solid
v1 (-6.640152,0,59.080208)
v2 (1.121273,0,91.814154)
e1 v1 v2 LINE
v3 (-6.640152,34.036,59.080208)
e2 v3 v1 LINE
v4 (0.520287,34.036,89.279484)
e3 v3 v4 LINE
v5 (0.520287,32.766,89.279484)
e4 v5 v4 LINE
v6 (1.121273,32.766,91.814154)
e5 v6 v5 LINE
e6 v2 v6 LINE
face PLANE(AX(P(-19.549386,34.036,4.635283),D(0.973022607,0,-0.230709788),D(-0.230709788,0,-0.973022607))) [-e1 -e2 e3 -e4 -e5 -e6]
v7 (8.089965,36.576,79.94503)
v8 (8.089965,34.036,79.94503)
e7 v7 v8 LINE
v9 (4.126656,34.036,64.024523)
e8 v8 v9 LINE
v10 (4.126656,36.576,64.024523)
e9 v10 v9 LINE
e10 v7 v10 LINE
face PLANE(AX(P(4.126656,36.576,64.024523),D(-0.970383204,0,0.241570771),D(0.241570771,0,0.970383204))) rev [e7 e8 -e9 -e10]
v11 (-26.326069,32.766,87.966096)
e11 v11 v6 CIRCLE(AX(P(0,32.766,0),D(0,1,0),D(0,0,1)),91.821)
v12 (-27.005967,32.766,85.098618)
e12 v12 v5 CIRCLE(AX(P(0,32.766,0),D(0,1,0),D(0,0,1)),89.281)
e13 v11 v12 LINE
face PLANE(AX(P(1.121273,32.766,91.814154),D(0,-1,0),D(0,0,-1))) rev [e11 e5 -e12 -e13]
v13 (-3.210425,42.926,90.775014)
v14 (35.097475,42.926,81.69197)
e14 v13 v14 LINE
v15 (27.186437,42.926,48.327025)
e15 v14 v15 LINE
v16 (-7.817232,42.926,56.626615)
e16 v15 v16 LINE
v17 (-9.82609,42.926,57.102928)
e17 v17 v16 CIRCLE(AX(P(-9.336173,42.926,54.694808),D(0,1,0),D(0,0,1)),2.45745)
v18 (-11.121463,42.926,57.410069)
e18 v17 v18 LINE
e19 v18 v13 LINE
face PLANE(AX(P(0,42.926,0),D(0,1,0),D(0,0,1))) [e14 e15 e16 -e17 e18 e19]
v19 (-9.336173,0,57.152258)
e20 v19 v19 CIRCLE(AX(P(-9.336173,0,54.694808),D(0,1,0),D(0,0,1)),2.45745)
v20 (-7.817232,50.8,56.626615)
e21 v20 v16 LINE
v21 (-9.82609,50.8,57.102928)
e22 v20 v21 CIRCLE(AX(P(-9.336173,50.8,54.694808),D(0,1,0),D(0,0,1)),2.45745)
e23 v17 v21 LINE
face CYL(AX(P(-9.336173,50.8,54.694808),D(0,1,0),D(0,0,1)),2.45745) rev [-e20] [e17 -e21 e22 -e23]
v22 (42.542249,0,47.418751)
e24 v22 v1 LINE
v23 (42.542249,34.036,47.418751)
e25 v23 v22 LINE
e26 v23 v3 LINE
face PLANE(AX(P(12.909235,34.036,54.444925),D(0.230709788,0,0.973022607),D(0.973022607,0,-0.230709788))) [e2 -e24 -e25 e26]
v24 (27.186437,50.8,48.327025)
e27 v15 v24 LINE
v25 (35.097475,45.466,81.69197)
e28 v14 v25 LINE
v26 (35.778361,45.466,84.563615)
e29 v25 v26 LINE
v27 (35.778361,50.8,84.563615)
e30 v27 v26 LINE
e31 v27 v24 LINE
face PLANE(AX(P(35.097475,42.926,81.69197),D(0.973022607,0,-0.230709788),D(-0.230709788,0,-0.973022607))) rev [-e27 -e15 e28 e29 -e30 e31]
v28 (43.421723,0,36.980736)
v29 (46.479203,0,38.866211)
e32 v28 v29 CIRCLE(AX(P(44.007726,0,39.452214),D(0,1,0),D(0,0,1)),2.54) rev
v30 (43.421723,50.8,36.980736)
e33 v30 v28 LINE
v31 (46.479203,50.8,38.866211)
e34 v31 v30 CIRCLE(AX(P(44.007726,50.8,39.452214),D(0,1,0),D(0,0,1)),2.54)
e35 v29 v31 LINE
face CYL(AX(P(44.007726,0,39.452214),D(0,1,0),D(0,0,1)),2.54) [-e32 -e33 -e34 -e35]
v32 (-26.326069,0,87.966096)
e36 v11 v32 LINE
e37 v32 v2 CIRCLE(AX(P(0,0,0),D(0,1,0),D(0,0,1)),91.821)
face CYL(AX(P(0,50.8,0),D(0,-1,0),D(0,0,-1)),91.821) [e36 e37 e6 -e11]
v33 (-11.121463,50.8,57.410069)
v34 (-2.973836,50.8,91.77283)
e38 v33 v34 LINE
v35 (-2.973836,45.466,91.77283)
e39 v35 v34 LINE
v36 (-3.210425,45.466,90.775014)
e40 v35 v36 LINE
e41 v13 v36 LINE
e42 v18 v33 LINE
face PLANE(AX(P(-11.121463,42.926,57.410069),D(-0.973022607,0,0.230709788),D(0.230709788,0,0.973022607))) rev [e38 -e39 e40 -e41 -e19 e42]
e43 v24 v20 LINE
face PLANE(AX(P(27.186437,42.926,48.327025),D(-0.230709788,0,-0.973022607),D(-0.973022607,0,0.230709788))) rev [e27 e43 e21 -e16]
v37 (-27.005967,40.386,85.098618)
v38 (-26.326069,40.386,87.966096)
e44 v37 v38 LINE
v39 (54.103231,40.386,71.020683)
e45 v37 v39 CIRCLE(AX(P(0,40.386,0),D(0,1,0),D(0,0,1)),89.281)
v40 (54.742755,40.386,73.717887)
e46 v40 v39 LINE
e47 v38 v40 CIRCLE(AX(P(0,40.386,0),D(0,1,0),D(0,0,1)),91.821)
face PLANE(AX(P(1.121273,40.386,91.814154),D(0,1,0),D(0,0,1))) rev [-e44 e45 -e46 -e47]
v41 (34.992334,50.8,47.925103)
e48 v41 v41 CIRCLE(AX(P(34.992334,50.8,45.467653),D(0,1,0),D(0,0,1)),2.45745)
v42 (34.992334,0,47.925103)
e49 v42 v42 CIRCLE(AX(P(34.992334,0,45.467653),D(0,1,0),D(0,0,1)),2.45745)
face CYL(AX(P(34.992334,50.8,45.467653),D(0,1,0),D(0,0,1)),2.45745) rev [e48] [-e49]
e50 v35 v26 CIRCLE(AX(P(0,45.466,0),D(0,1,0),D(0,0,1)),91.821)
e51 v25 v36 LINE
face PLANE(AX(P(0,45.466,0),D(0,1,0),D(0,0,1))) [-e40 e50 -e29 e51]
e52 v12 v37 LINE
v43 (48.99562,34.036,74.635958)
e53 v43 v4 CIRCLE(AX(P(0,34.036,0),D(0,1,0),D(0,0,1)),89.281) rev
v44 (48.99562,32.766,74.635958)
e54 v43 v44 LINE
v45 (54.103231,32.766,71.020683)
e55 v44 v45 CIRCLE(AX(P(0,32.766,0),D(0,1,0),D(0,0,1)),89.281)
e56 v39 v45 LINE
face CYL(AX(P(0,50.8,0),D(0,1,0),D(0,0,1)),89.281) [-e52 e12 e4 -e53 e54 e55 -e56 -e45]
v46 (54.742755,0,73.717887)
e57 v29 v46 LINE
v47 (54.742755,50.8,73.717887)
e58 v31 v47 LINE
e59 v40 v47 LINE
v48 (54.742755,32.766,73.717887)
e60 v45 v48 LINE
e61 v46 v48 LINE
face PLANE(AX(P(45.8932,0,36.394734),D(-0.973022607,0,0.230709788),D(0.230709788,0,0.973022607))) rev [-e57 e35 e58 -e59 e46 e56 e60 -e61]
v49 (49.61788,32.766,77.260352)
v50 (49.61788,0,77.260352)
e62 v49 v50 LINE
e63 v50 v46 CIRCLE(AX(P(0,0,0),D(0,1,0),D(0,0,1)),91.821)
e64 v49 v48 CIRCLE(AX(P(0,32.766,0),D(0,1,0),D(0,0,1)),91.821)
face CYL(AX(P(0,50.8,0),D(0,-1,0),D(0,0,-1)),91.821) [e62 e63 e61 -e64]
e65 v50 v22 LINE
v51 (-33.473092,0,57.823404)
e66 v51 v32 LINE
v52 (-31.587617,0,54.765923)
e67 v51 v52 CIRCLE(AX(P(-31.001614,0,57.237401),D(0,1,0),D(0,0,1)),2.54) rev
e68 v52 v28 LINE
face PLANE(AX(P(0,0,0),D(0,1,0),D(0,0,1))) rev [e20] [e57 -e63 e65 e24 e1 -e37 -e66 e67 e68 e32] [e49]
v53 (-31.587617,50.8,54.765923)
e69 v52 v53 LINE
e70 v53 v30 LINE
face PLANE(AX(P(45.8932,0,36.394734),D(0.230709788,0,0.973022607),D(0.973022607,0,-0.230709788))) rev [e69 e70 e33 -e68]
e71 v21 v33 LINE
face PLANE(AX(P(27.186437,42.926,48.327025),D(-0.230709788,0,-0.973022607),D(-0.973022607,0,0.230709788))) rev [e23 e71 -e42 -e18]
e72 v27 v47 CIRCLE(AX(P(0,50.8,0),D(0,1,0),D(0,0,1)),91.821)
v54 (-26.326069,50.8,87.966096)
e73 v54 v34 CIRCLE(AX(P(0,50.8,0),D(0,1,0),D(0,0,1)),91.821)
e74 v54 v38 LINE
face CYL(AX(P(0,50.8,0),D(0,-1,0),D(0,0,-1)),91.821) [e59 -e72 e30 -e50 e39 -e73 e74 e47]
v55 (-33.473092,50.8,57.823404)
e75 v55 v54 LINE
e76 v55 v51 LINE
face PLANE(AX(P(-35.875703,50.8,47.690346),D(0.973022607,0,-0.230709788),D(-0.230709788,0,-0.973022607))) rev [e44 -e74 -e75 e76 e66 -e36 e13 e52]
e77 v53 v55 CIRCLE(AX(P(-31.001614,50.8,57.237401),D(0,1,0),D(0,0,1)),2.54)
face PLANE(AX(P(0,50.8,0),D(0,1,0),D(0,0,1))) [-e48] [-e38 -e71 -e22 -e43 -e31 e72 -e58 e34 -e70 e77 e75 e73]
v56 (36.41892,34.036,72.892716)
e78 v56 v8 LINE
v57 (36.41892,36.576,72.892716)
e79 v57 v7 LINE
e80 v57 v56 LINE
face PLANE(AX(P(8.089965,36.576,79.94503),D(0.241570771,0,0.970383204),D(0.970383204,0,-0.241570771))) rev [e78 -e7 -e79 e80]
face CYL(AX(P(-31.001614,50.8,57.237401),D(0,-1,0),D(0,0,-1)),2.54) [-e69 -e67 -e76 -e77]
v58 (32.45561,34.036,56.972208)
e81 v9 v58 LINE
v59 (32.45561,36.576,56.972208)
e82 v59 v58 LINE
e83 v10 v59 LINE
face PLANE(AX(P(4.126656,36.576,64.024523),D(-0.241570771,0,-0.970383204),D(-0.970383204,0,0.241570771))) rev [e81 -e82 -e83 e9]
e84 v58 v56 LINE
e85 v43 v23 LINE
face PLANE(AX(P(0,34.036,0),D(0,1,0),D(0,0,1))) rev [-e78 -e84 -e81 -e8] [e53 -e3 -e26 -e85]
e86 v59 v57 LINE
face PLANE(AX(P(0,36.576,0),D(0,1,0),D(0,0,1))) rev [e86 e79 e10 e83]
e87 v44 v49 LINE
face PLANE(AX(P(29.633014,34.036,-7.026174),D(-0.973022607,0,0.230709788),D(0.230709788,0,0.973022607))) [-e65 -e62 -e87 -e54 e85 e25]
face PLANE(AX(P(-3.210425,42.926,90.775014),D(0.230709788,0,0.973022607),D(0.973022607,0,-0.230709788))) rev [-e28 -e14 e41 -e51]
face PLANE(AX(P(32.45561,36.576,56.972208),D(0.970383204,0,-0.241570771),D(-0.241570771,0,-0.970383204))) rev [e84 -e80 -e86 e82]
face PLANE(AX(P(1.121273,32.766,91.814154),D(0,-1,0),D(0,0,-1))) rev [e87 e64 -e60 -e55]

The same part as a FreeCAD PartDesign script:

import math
import FreeCAD as App
import Part
import Sketcher
from FreeCAD import Vector
Q = App.Units.Quantity


def edges_at(feature, points):
    """Names of the edges that pass closest to the given points."""
    edges = feature.Shape.Edges
    near = lambda p: min(range(len(edges)), key=lambda i: edges[i].distToShape(Part.Vertex(*p))[0])
    return sorted({f"Edge{near(p) + 1}" for p in points})


def add_polygon(sketch, points):
    """Adds a closed chain of lines whose ends are joined by coincident constraints."""
    first, n = sketch.GeometryCount, len(points)
    for a, b in zip(points, points[1:] + points[:1]):
        sketch.addGeometry(Part.LineSegment(App.Vector(*a, 0), App.Vector(*b, 0)), False)
    for i in range(n):
        sketch.addConstraint(Sketcher.Constraint("Coincident", first + i, 2, first + (i + 1) % n, 1))

doc = App.newDocument("Part")
params = doc.addObject("Spreadsheet::Sheet", "Params")
for row, (alias, value) in enumerate([
    ("sketch1_radius", "3.615 in"),
    ("sketch1_length", "3.615 in"),
    ("pad1_length", "2 in"),
    ("sketch2_length", "1.11 in"),
    ("sketch2_length2", "1.99 in"),
    ("sketch2_length3", "1.199 in"),
    ("pocket1_length", "1.34 in"),
    ("sketch3_width", "1.99 in"),
    ("sketch3_height", "1.34 in"),
    ("pocket3_length", "0.1 in"),
    ("sketch5_length", "1.55 in"),
    ("sketch5_length2", "1.35 in"),
    ("pocket4_length", "0.31 in"),
    ("fillet_radius", "0.1 in"),
    ("fillet2_radius", "0.1 in"),
    ("sketch6_length", "0.5 in"),
    ("sketch6_length2", "4.2700001 in"),
    ("sketch6_length3", "1.86 in"),
    ("hole_diameter", "0.1935 in"),
    ("fillet3_radius", "0.1 in"),
    ("sketch8_length", "1.55 in"),
    ("pocket6_length", "0.21 in"),
    ("sketch9_width", "0.3 in"),
    ("sketch9_height", "0.1 in"),
    ("groove_angle", "360 deg"),
], start=1):
    params.set(f"A{row}", alias)
    params.set(f"B{row}", "=" + value)
    params.setAlias(f"B{row}", alias)

body = doc.addObject("PartDesign::Body", "Body")

sketch1 = body.newObject("Sketcher::SketchObject", "Sketch")
sketch1.AttachmentSupport = (doc.getObject("XZ_Plane"), [""])
sketch1.MapMode = "FlatFace"
sketch1.addGeometry([
    Part.LineSegment(Vector(63, 67, 0), Vector(53, 27, 0)),
    Part.LineSegment(Vector(53, 27, 0), Vector(-36, 48, 0)),
    Part.LineSegment(Vector(-36, 48, 0), Vector(-26, 88, 0)),
    Part.ArcOfCircle(Part.Circle(Vector(0, 0, 0), Vector(0, 0, 1), 92), math.radians(47), math.radians(107)),
], False)
sketch1.addConstraint([
    Sketcher.Constraint("Coincident", 0, 2, 1, 1),
    Sketcher.Constraint("Coincident", 1, 2, 2, 1),
    Sketcher.Constraint("Coincident", 2, 2, 3, 2),
    Sketcher.Constraint("Coincident", 3, 1, 0, 1),
    Sketcher.Constraint("Coincident", 3, 3, -1, 1),
    Sketcher.Constraint("Perpendicular", 0, 1),
    Sketcher.Constraint("Perpendicular", 1, 2),
    Sketcher.Constraint("Equal", 0, 2),
    Sketcher.Constraint("Radius", 3, Q("3.615 in")),
    Sketcher.Constraint("Distance", 1, Q("3.615 in")),
    Sketcher.Constraint("Distance", 0, 41.39241),
    Sketcher.Constraint("DistanceX", 2, 2, -1, 1, 26.326069),
])
sketch1.setExpression("Constraints[8]", "Params.sketch1_radius")
sketch1.setExpression("Constraints[9]", "Params.sketch1_length")
pad1 = body.newObject("PartDesign::Pad", "Pad")
pad1.Profile = sketch1
pad1.setExpression("Length", "Params.pad1_length")
pad1.Reversed = True

sketch2 = body.newObject("Sketcher::SketchObject", "Sketch001")
sketch2.AttachmentSupport = (doc.getObject("XZ_Plane"), [""])
sketch2.MapMode = "FlatFace"
add_polygon(sketch2, [(19, 82), (49, 75), (43, 47), (-7, 59), (0, 87)])
sketch2.addConstraint([
    Sketcher.Constraint("Perpendicular", 0, 1),
    Sketcher.Constraint("Perpendicular", 1, 2),
    Sketcher.Constraint("Perpendicular", 2, 3),
    Sketcher.Constraint("Perpendicular", 3, 4),
    Sketcher.Constraint("Distance", 1, Q("1.11 in")),
    Sketcher.Constraint("Distance", 2, Q("1.99 in")),
    Sketcher.Constraint("Distance", 0, Q("1.199 in")),
    Sketcher.Constraint("DistanceY", 1, 2, 0, 2, 27.433399),
    Sketcher.Constraint("DistanceX", -1, 1, 0, 2, 49.046881),
    Sketcher.Constraint("DistanceY", -1, 1, 0, 2, 74.85215),
])
sketch2.setExpression("Constraints[9]", "Params.sketch2_length")
sketch2.setExpression("Constraints[10]", "Params.sketch2_length2")
sketch2.setExpression("Constraints[11]", "Params.sketch2_length3")
pocket1 = body.newObject("PartDesign::Pocket", "Pocket")
pocket1.Profile = sketch2
pocket1.setExpression("Length", "Params.pocket1_length")

sketch3 = body.newObject("Sketcher::SketchObject", "Sketch002")
sketch3.Placement = App.Placement(Vector(19.413866, 0, 81.878325), App.Rotation(Vector(-0.973022607, 0, 0.230709788), Vector(0, 1, 0), Vector(-0.230709788, 0, -0.973022607), "ZXY"))
add_polygon(sketch3, [(-30, 34), (-30, 0), (20, 0), (20, 34)])
sketch3.addConstraint([
    Sketcher.Constraint("Vertical", 0),
    Sketcher.Constraint("Horizontal", 1),
    Sketcher.Constraint("Vertical", 2),
    Sketcher.Constraint("Horizontal", 3),
    Sketcher.Constraint("PointOnObject", 0, 2, -1),
    Sketcher.Constraint("DistanceX", 1, 1, 1, 2, Q("1.99 in")),
    Sketcher.Constraint("DistanceY", 0, 2, 0, 1, Q("1.34 in")),
    Sketcher.Constraint("DistanceX", 0, 2, -1, 1, Q("1.199 in")),
])
sketch3.setExpression("Constraints[9]", "Params.sketch3_width")
sketch3.setExpression("Constraints[10]", "Params.sketch3_height")
pocket2 = body.newObject("PartDesign::Pocket", "Pocket001")
pocket2.Profile = sketch3
pocket2.Type = "ThroughAll"

sketch4 = body.newObject("Sketcher::SketchObject", "Sketch003")
sketch4.AttachmentSupport = (doc.getObject("XZ_Plane"), [""])
sketch4.MapMode = "FlatFace"
sketch4.AttachmentOffset = App.Placement(Vector(0, 0, -1.34 * 25.4), App.Rotation())
add_polygon(sketch4, [(4, 64), (32, 57), (36, 73), (8, 80)])
sketch4.addConstraint([
    Sketcher.Constraint("Perpendicular", 0, 1),
    Sketcher.Constraint("Perpendicular", 1, 2),
    Sketcher.Constraint("Perpendicular", 2, 3),
    Sketcher.Constraint("DistanceX", -1, 1, 0, 2, 32.45561),
    Sketcher.Constraint("DistanceY", -1, 1, 0, 2, 56.972208),
    Sketcher.Constraint("DistanceX", -1, 1, 1, 2, 36.41892),
    Sketcher.Constraint("DistanceY", -1, 1, 2, 2, 79.94503),
    Sketcher.Constraint("Distance", 0, 29.193575),
])
pocket3 = body.newObject("PartDesign::Pocket", "Pocket002")
pocket3.Profile = sketch4
pocket3.setExpression("Length", "Params.pocket3_length")

sketch5 = body.newObject("Sketcher::SketchObject", "Sketch004")
sketch5.AttachmentSupport = (doc.getObject("XZ_Plane"), [""])
sketch5.MapMode = "FlatFace"
sketch5.AttachmentOffset = App.Placement(Vector(0, 0, -2 * 25.4), App.Rotation())
add_polygon(sketch5, [(-3, 91), (35, 82), (27, 48), (-11, 57)])
sketch5.addConstraint([
    Sketcher.Constraint("Perpendicular", 0, 1),
    Sketcher.Constraint("Perpendicular", 1, 2),
    Sketcher.Constraint("Perpendicular", 2, 3),
    Sketcher.Constraint("Distance", 0, Q("1.55 in")),
    Sketcher.Constraint("Distance", 1, Q("1.35 in")),
    Sketcher.Constraint("DistanceY", 1, 2, 2, 2, Q("0.3576002 in")),
    Sketcher.Constraint("DistanceY", -1, 1, 0, 2, 81.69197),
    Sketcher.Constraint("DistanceX", -1, 1, 0, 2, 35.097475),
])
sketch5.setExpression("Constraints[7]", "Params.sketch5_length")
sketch5.setExpression("Constraints[8]", "Params.sketch5_length2")
pocket4 = body.newObject("PartDesign::Pocket", "Pocket003")
pocket4.Profile = sketch5
pocket4.setExpression("Length", "Params.pocket4_length")
pocket4.Reversed = True
doc.recompute()

fillet = body.newObject("PartDesign::Fillet", "Fillet")
fillet.Base = (pocket4, edges_at(pocket4, [(53.468, 25.4, 26.506)]))
fillet.setExpression("Radius", "Params.fillet_radius")
doc.recompute()

fillet2 = body.newObject("PartDesign::Fillet", "Fillet001")
fillet2.Base = (fillet, edges_at(fillet, [(-35.876, 25.4, 47.69)]))
fillet2.setExpression("Radius", "Params.fillet2_radius")

sketch6 = body.newObject("Sketcher::SketchObject", "Sketch005")
sketch6.AttachmentSupport = (doc.getObject("XZ_Plane"), [""])
sketch6.MapMode = "FlatFace"
sketch6.AttachmentOffset = App.Placement(Vector(0, 0, -2 * 25.4), App.Rotation())
add_polygon(sketch6, [(57, 82), (69, 79), (55, 20), (-51, 45), (-47, 58), (46, 36)])
sketch6.addConstraint([
    Sketcher.Constraint("Perpendicular", 0, 1),
    Sketcher.Constraint("Perpendicular", 1, 2),
    Sketcher.Constraint("Perpendicular", 2, 3),
    Sketcher.Constraint("Perpendicular", 3, 4),
    Sketcher.Constraint("Perpendicular", 4, 5),
    Sketcher.Constraint("Distance", 0, Q("0.5 in")),
    Sketcher.Constraint("Distance", 2, Q("4.2700001 in")),
    Sketcher.Constraint("Distance", 5, Q("1.86 in")),
    Sketcher.Constraint("DistanceY", -1, 1, 0, 2, 79.434199),
    Sketcher.Constraint("DistanceX", 3, 2, -1, 1, 47.281501),
    Sketcher.Constraint("DistanceX", -1, 1, 4, 2, 45.8932),
    Sketcher.Constraint("DistanceX", 1, 2, 0, 2, 14.179498),
])
sketch6.setExpression("Constraints[11]", "Params.sketch6_length")
sketch6.setExpression("Constraints[12]", "Params.sketch6_length2")
sketch6.setExpression("Constraints[13]", "Params.sketch6_length3")
pocket5 = body.newObject("PartDesign::Pocket", "Pocket004")
pocket5.Profile = sketch6
pocket5.Type = "ThroughAll"
pocket5.Reversed = True

sketch7 = body.newObject("Sketcher::SketchObject", "Sketch006")
sketch7.AttachmentSupport = (doc.getObject("XZ_Plane"), [""])
sketch7.MapMode = "FlatFace"
sketch7.AttachmentOffset = App.Placement(Vector(0, 0, -2 * 25.4), App.Rotation())
sketch7.addGeometry([
    Part.Circle(Vector(-9.3, 54.7, 0), Vector(0, 0, 1), 2.5),
    Part.Circle(Vector(35, 45.5, 0), Vector(0, 0, 1), 2.5),
], False)
sketch7.addConstraint([
    Sketcher.Constraint("Equal", 0, 1),
    Sketcher.Constraint("Diameter", 0, Q("0.1935 in")),
    Sketcher.Constraint("DistanceX", 0, 3, -1, 1, 9.336173),
    Sketcher.Constraint("DistanceY", -1, 1, 0, 3, 54.694808),
    Sketcher.Constraint("DistanceX", -1, 1, 1, 3, 34.992334),
    Sketcher.Constraint("DistanceY", -1, 1, 1, 3, 45.467653),
])
doc.recompute()
hole = body.newObject("PartDesign::Hole", "Hole")
hole.Profile = sketch7
hole.ThreadType = "None"
hole.setExpression("Diameter", "Params.hole_diameter")
hole.DepthType = "ThroughAll"
hole.Reversed = True
doc.recompute()

fillet3 = body.newObject("PartDesign::Fillet", "Fillet002")
fillet3.Base = (hole, edges_at(hole, [(-34.059, 25.4, 55.352), (45.893, 25.4, 36.395)]))
fillet3.setExpression("Radius", "Params.fillet3_radius")

sketch8 = body.newObject("Sketcher::SketchObject", "Sketch007")
sketch8.AttachmentSupport = (doc.getObject("XZ_Plane"), [""])
sketch8.MapMode = "FlatFace"
sketch8.AttachmentOffset = App.Placement(Vector(0, 0, -2 * 25.4), App.Rotation())
add_polygon(sketch8, [(33, 73), (-5, 82), (-1, 100), (37, 91)])
sketch8.addConstraint([
    Sketcher.Constraint("Perpendicular", 0, 1),
    Sketcher.Constraint("Perpendicular", 1, 2),
    Sketcher.Constraint("Perpendicular", 2, 3),
    Sketcher.Constraint("Distance", 0, Q("1.55 in")),
    Sketcher.Constraint("DistanceY", 2, 2, 1, 2, Q("0.3576002 in")),
    Sketcher.Constraint("DistanceX", 0, 2, 1, 2, 4.2292),
    Sketcher.Constraint("DistanceY", -1, 1, 2, 2, 90.767168),
    Sketcher.Constraint("DistanceX", 0, 2, -1, 1, 5.287838),
])
sketch8.setExpression("Constraints[7]", "Params.sketch8_length")
pocket6 = body.newObject("PartDesign::Pocket", "Pocket005")
pocket6.Profile = sketch8
pocket6.setExpression("Length", "Params.pocket6_length")
pocket6.Reversed = True

sketch9 = body.newObject("Sketcher::SketchObject", "Sketch008")
sketch9.Placement = App.Placement(Vector(0, 0, 0), App.Rotation(Vector(0, 1, 0), Vector(0.012211508, 0, 0.999925437), Vector(0.999925437, 0, -0.012211508), "ZXY"))
add_polygon(sketch9, [(32.8, 91.8), (32.8, 89.3), (40.4, 89.3), (40.4, 91.8)])
sketch9.addConstraint([
    Sketcher.Constraint("Vertical", 0),
    Sketcher.Constraint("Horizontal", 1),
    Sketcher.Constraint("Vertical", 2),
    Sketcher.Constraint("Horizontal", 3),
    Sketcher.Constraint("DistanceX", 1, 1, 1, 2, Q("0.3 in")),
    Sketcher.Constraint("DistanceY", 0, 2, 0, 1, Q("0.1 in")),
    Sketcher.Constraint("DistanceX", -1, 1, 0, 2, Q("1.29 in")),
    Sketcher.Constraint("DistanceY", -1, 1, 0, 2, Q("3.515 in")),
])
sketch9.setExpression("Constraints[8]", "Params.sketch9_width")
sketch9.setExpression("Constraints[9]", "Params.sketch9_height")
groove = body.newObject("PartDesign::Groove", "Groove")
groove.Profile = sketch9
groove.ReferenceAxis = (sketch9, ["H_Axis"])
groove.setExpression("Angle", "Params.groove_angle")

doc.recompute()
